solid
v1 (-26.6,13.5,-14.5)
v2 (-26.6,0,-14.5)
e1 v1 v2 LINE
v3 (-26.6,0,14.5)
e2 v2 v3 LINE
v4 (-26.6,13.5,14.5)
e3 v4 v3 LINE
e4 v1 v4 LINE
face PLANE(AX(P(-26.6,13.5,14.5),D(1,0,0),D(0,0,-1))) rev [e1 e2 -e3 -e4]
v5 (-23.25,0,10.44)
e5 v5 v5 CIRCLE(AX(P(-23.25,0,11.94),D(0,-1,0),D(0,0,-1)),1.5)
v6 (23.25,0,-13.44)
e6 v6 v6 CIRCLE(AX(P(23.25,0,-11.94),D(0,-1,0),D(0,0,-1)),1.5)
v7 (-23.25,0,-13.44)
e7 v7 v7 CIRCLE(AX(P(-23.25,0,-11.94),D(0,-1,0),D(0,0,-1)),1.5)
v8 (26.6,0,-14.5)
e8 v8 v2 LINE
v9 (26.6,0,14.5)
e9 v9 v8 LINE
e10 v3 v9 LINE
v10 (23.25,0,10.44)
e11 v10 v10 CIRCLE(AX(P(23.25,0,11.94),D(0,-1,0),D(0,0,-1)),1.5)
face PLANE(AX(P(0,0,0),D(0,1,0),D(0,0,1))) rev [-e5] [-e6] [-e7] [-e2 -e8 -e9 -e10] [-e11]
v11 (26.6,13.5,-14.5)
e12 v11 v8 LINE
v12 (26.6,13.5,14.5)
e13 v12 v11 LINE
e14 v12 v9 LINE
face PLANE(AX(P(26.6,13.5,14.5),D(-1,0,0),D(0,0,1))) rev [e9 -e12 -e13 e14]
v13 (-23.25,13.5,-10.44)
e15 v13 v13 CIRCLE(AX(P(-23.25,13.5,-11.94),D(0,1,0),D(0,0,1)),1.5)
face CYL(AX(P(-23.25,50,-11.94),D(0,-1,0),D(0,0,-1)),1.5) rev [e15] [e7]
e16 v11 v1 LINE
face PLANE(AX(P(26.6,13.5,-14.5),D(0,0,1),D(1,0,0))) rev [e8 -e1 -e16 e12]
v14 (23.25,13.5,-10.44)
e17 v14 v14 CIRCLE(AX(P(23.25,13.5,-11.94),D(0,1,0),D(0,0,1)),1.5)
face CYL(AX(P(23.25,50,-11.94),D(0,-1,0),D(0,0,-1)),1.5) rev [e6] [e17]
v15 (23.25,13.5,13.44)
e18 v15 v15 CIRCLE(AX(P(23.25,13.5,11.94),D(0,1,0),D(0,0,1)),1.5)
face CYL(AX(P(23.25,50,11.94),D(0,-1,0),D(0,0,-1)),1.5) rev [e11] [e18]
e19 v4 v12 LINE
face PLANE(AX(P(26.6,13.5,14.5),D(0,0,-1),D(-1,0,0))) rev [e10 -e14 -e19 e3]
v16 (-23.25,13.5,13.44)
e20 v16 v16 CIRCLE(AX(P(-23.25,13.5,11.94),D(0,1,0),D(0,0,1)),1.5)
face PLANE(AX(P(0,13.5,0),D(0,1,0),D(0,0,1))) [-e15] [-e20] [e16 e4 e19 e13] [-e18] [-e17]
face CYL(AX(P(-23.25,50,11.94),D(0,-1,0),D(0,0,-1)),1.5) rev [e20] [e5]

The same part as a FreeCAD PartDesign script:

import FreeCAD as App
import Part
import Sketcher
Q = App.Units.Quantity

doc = App.newDocument("Part")
body = doc.addObject("PartDesign::Body", "Body")

# Sketch on XZ plane
sketch1 = body.newObject("Sketcher::SketchObject", "Sketch")
sketch1.AttachmentSupport = (doc.getObject("XZ_Plane"), [""])
sketch1.MapMode = "FlatFace"
sketch1.addGeometry([
    Part.LineSegment(App.Vector(-27, -14, 0), App.Vector(-27, 14, 0)),
    Part.LineSegment(App.Vector(-27, 14, 0), App.Vector(27, 14, 0)),
    Part.LineSegment(App.Vector(27, 14, 0), App.Vector(27, -14, 0)),
    Part.LineSegment(App.Vector(27, -14, 0), App.Vector(-27, -14, 0)),
], False)
sketch1.addConstraint([
    Sketcher.Constraint("Coincident", 0, 2, 1, 1),
    Sketcher.Constraint("Coincident", 1, 2, 2, 1),
    Sketcher.Constraint("Coincident", 2, 2, 3, 1),
    Sketcher.Constraint("Coincident", 3, 2, 0, 1),
    Sketcher.Constraint("Vertical", 0),
    Sketcher.Constraint("Horizontal", 1),
    Sketcher.Constraint("Vertical", 2),
    Sketcher.Constraint("Horizontal", 3),
    Sketcher.Constraint("Symmetric", 0, 2, 2, 2, -1, 1),
    Sketcher.Constraint("DistanceY", 0, 1, 0, 2, Q("29 mm")),
    Sketcher.Constraint("DistanceX", 1, 1, 1, 2, Q("53.2 mm")),
])
pad1 = body.newObject("PartDesign::Pad", "Pad")
pad1.Profile = sketch1
pad1.Length = 13.5
pad1.Reversed = True

# Sketch on XZ plane
sketch2 = body.newObject("Sketcher::SketchObject", "Sketch001")
sketch2.AttachmentSupport = (doc.getObject("XZ_Plane"), [""])
sketch2.MapMode = "FlatFace"
sketch2.addGeometry([
    Part.Circle(App.Vector(-23.2, 11.9, 0), App.Vector(0, 0, 1), 1.5),
    Part.Circle(App.Vector(23.2, 11.9, 0), App.Vector(0, 0, 1), 1.5),
    Part.Circle(App.Vector(23.2, -11.9, 0), App.Vector(0, 0, 1), 1.5),
    Part.Circle(App.Vector(-23.2, -11.9, 0), App.Vector(0, 0, 1), 1.5),
], False)
sketch2.addConstraint([
    Sketcher.Constraint("Equal", 0, 1),
    Sketcher.Constraint("Equal", 1, 2),
    Sketcher.Constraint("Equal", 2, 3),
    Sketcher.Constraint("Symmetric", 0, 3, 2, 3, -1, 1),
    Sketcher.Constraint("Symmetric", 1, 3, 3, 3, -1, 1),
    Sketcher.Constraint("Symmetric", 0, 3, 1, 3, -2),
    Sketcher.Constraint("Diameter", 0, Q("3 mm")),
    Sketcher.Constraint("DistanceX", 0, 3, 1, 3, Q("46.5 mm")),
    Sketcher.Constraint("DistanceY", -1, 1, 0, 3, Q("11.94 mm")),
])
pocket1 = body.newObject("PartDesign::Pocket", "Pocket")
pocket1.Profile = sketch2
pocket1.Length = 50

doc.recompute()
